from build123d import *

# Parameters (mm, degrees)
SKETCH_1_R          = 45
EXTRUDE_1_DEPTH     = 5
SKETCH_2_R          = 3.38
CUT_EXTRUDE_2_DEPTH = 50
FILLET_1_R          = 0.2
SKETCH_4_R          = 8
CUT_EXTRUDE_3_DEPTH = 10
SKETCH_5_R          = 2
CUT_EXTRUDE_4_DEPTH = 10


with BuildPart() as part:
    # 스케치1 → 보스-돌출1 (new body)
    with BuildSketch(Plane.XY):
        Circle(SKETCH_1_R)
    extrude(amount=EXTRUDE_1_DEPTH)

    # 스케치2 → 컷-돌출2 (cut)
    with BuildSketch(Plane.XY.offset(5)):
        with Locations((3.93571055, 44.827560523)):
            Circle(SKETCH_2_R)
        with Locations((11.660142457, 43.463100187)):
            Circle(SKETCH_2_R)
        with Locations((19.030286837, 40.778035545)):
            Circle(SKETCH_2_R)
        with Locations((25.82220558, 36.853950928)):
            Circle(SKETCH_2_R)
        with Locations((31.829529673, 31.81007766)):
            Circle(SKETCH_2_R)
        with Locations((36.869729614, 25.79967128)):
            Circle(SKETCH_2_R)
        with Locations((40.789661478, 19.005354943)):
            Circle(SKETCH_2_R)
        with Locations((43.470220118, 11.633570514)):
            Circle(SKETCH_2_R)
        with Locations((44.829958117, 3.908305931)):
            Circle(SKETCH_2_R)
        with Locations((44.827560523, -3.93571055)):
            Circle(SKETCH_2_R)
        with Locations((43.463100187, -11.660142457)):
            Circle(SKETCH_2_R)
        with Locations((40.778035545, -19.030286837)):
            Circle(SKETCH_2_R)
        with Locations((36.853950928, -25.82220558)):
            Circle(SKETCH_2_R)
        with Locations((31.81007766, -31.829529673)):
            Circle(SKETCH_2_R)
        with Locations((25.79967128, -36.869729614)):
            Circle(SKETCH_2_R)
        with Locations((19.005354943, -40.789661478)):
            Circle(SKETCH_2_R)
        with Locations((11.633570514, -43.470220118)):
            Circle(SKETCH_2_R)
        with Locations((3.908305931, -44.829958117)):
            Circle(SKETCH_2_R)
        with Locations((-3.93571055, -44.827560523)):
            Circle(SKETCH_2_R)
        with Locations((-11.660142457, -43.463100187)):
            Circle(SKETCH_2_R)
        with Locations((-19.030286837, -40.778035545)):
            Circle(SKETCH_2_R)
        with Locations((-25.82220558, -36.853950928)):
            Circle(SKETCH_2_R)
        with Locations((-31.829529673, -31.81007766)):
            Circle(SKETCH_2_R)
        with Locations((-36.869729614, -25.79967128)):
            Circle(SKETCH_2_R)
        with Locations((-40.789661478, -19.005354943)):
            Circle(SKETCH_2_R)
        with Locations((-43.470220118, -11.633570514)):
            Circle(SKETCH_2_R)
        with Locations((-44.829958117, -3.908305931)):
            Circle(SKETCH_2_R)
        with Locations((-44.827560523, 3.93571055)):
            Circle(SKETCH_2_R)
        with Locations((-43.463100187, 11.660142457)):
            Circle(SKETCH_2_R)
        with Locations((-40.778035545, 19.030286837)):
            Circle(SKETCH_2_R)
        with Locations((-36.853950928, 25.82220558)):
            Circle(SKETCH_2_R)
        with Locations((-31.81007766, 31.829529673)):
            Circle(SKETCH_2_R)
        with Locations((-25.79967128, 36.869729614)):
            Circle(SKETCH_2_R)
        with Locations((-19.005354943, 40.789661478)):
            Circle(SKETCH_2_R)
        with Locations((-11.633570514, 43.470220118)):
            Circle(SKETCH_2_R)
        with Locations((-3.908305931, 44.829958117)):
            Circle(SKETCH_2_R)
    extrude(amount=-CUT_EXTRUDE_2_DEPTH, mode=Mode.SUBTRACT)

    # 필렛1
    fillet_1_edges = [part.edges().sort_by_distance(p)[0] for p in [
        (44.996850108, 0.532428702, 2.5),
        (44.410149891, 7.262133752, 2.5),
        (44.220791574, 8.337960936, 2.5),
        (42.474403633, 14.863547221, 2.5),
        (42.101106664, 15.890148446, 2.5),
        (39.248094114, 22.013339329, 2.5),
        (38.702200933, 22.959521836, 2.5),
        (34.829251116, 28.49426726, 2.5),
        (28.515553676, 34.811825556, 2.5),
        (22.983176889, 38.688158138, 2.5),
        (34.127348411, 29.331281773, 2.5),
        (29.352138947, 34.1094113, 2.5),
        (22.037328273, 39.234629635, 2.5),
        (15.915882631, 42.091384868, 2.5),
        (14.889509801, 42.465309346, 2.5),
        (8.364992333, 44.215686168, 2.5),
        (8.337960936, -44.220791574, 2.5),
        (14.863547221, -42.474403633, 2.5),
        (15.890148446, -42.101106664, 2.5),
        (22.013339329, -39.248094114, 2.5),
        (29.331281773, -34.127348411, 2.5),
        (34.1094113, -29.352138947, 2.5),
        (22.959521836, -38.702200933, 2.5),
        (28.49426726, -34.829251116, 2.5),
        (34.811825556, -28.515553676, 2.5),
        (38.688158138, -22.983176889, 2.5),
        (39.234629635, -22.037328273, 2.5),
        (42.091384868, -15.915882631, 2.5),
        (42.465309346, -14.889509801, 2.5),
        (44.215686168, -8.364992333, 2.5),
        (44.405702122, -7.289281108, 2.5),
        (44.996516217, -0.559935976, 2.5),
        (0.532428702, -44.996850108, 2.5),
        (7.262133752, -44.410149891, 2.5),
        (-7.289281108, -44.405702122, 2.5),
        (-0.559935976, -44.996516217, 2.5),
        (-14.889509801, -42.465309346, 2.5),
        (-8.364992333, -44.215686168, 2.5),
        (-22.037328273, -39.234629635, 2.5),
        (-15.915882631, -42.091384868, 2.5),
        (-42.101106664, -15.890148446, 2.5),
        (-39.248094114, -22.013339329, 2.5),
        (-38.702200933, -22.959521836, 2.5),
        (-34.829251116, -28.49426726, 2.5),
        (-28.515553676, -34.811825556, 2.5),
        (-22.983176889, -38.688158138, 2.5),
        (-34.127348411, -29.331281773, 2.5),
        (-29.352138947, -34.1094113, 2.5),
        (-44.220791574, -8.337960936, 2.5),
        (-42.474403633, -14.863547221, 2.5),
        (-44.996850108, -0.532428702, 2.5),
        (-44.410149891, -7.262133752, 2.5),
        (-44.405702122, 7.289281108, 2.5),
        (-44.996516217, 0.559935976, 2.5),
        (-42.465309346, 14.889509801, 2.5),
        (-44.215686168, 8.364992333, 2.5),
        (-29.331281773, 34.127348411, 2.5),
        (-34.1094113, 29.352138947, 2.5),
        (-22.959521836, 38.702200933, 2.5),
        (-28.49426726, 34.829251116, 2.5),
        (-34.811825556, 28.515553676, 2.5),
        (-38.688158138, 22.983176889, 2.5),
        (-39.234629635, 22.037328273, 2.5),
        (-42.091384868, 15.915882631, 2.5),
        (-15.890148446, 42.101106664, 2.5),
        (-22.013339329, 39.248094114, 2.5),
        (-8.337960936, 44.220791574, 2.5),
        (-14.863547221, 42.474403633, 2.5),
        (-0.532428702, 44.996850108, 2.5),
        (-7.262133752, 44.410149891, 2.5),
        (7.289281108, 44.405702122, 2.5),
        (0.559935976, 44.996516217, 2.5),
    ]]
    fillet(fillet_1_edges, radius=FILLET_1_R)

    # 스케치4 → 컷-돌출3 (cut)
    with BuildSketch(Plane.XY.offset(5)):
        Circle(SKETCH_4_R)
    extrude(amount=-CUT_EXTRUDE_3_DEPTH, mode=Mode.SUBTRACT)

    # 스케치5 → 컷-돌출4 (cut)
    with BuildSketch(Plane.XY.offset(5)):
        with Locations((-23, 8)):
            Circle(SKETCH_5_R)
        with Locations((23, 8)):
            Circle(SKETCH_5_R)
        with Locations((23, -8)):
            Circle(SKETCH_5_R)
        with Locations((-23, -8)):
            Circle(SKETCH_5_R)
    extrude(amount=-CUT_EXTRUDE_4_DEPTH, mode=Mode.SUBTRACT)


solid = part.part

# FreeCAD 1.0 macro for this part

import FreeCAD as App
import Part
import Sketcher
from FreeCAD import Vector
Q = App.Units.Quantity


def edges_at(feature, points):
    """Names of the edges that pass closest to the given points."""
    edges = feature.Shape.Edges
    near = lambda p: min(range(len(edges)), key=lambda i: edges[i].distToShape(Part.Vertex(*p))[0])
    return sorted({f"Edge{near(p) + 1}" for p in points})

doc = App.newDocument("Part")
params = doc.addObject("Spreadsheet::Sheet", "Params")
for row, (alias, value) in enumerate([
    ("sketch1_diameter", "90 mm"),
    ("pad1_length", "5 mm"),
    ("sketch2_diameter", "6.76 mm"),
    ("pocket1_length", "50 mm"),
    ("fillet_radius", "0.2 mm"),
    ("sketch3_diameter", "16 mm"),
    ("pocket2_length", "10 mm"),
    ("sketch4_diameter", "4 mm"),
    ("pocket3_length", "10 mm"),
], start=1):
    params.set(f"A{row}", alias)
    params.set(f"B{row}", "=" + value)
    params.setAlias(f"B{row}", alias)

body = doc.addObject("PartDesign::Body", "Body")

# Sketch on XY plane
sketch1 = doc.addObject("Sketcher::SketchObject", "Sketch")
body.addObject(sketch1)
sketch1.AttachmentSupport = (doc.XY_Plane, [""])
sketch1.MapMode = "FlatFace"
sketch1.addGeometry(Part.Circle(Vector(0, 0, 0), Vector(0, 0, 1), 45), False)
sketch1.addConstraint([
    Sketcher.Constraint("Coincident", 0, 3, -1, 1),
    Sketcher.Constraint("Diameter", 0, Q("90 mm")),
])
sketch1.setExpression("Constraints[1]", "Params.sketch1_diameter")
pad1 = doc.addObject("PartDesign::Pad", "Pad")
body.addObject(pad1)
pad1.Profile = sketch1
pad1.setExpression("Length", "Params.pad1_length")

# Sketch on XY plane
sketch2 = doc.addObject("Sketcher::SketchObject", "Sketch001")
body.addObject(sketch2)
sketch2.AttachmentSupport = (doc.XY_Plane, [""])
sketch2.MapMode = "FlatFace"
sketch2.AttachmentOffset = App.Placement(Vector(0, 0, 5), App.Rotation())
sketch2.addGeometry([
    Part.Circle(Vector(3.9, 44.8, 0), Vector(0, 0, 1), 3.4),  # 0
    Part.Circle(Vector(11.7, 43.5, 0), Vector(0, 0, 1), 3.4),  # 1
    Part.Circle(Vector(19, 40.8, 0), Vector(0, 0, 1), 3.4),  # 2
    Part.Circle(Vector(25.8, 36.9, 0), Vector(0, 0, 1), 3.4),  # 3
    Part.Circle(Vector(31.8, 31.8, 0), Vector(0, 0, 1), 3.4),  # 4
    Part.Circle(Vector(36.9, 25.8, 0), Vector(0, 0, 1), 3.4),  # 5
    Part.Circle(Vector(40.8, 19, 0), Vector(0, 0, 1), 3.4),  # 6
    Part.Circle(Vector(43.5, 11.6, 0), Vector(0, 0, 1), 3.4),  # 7
    Part.Circle(Vector(44.8, 3.9, 0), Vector(0, 0, 1), 3.4),  # 8
    Part.Circle(Vector(44.8, -3.9, 0), Vector(0, 0, 1), 3.4),  # 9
    Part.Circle(Vector(43.5, -11.7, 0), Vector(0, 0, 1), 3.4),  # 10
    Part.Circle(Vector(40.8, -19, 0), Vector(0, 0, 1), 3.4),  # 11
    Part.Circle(Vector(36.9, -25.8, 0), Vector(0, 0, 1), 3.4),  # 12
    Part.Circle(Vector(31.8, -31.8, 0), Vector(0, 0, 1), 3.4),  # 13
    Part.Circle(Vector(25.8, -36.9, 0), Vector(0, 0, 1), 3.4),  # 14
    Part.Circle(Vector(19, -40.8, 0), Vector(0, 0, 1), 3.4),  # 15
    Part.Circle(Vector(11.6, -43.5, 0), Vector(0, 0, 1), 3.4),  # 16
    Part.Circle(Vector(3.9, -44.8, 0), Vector(0, 0, 1), 3.4),  # 17
    Part.Circle(Vector(-3.9, -44.8, 0), Vector(0, 0, 1), 3.4),  # 18
    Part.Circle(Vector(-11.7, -43.5, 0), Vector(0, 0, 1), 3.4),  # 19
    Part.Circle(Vector(-19, -40.8, 0), Vector(0, 0, 1), 3.4),  # 20
    Part.Circle(Vector(-25.8, -36.9, 0), Vector(0, 0, 1), 3.4),  # 21
    Part.Circle(Vector(-31.8, -31.8, 0), Vector(0, 0, 1), 3.4),  # 22
    Part.Circle(Vector(-36.9, -25.8, 0), Vector(0, 0, 1), 3.4),  # 23
    Part.Circle(Vector(-40.8, -19, 0), Vector(0, 0, 1), 3.4),  # 24
    Part.Circle(Vector(-43.5, -11.6, 0), Vector(0, 0, 1), 3.4),  # 25
    Part.Circle(Vector(-44.8, -3.9, 0), Vector(0, 0, 1), 3.4),  # 26
    Part.Circle(Vector(-44.8, 3.9, 0), Vector(0, 0, 1), 3.4),  # 27
    Part.Circle(Vector(-43.5, 11.7, 0), Vector(0, 0, 1), 3.4),  # 28
    Part.Circle(Vector(-40.8, 19, 0), Vector(0, 0, 1), 3.4),  # 29
    Part.Circle(Vector(-36.9, 25.8, 0), Vector(0, 0, 1), 3.4),  # 30
    Part.Circle(Vector(-31.8, 31.8, 0), Vector(0, 0, 1), 3.4),  # 31
    Part.Circle(Vector(-25.8, 36.9, 0), Vector(0, 0, 1), 3.4),  # 32
    Part.Circle(Vector(-19, 40.8, 0), Vector(0, 0, 1), 3.4),  # 33
    Part.Circle(Vector(-11.6, 43.5, 0), Vector(0, 0, 1), 3.4),  # 34
    Part.Circle(Vector(-3.9, 44.8, 0), Vector(0, 0, 1), 3.4),  # 35
], False)
sketch2.addConstraint([
    Sketcher.Constraint("Equal", 0, 1),
    Sketcher.Constraint("Equal", 1, 2),
    Sketcher.Constraint("Equal", 2, 3),
    Sketcher.Constraint("Equal", 3, 4),
    Sketcher.Constraint("Equal", 4, 5),
    Sketcher.Constraint("Equal", 5, 6),
    Sketcher.Constraint("Equal", 6, 7),
    Sketcher.Constraint("Equal", 7, 8),
    Sketcher.Constraint("Equal", 8, 9),
    Sketcher.Constraint("Equal", 9, 10),
    Sketcher.Constraint("Equal", 10, 11),
    Sketcher.Constraint("Equal", 11, 12),
    Sketcher.Constraint("Equal", 12, 13),
    Sketcher.Constraint("Equal", 13, 14),
    Sketcher.Constraint("Equal", 14, 15),
    Sketcher.Constraint("Equal", 15, 16),
    Sketcher.Constraint("Equal", 16, 17),
    Sketcher.Constraint("Equal", 17, 18),
    Sketcher.Constraint("Equal", 18, 19),
    Sketcher.Constraint("Equal", 19, 20),
    Sketcher.Constraint("Equal", 20, 21),
    Sketcher.Constraint("Equal", 21, 22),
    Sketcher.Constraint("Equal", 22, 23),
    Sketcher.Constraint("Equal", 23, 24),
    Sketcher.Constraint("Equal", 24, 25),
    Sketcher.Constraint("Equal", 25, 26),
    Sketcher.Constraint("Equal", 26, 27),
    Sketcher.Constraint("Equal", 27, 28),
    Sketcher.Constraint("Equal", 28, 29),
    Sketcher.Constraint("Equal", 29, 30),
    Sketcher.Constraint("Equal", 30, 31),
    Sketcher.Constraint("Equal", 31, 32),
    Sketcher.Constraint("Equal", 32, 33),
    Sketcher.Constraint("Equal", 33, 34),
    Sketcher.Constraint("Equal", 34, 35),
    Sketcher.Constraint("Symmetric", 0, 3, 18, 3, -1, 1),
    Sketcher.Constraint("Symmetric", 1, 3, 19, 3, -1, 1),
    Sketcher.Constraint("Symmetric", 2, 3, 20, 3, -1, 1),
    Sketcher.Constraint("Symmetric", 3, 3, 21, 3, -1, 1),
    Sketcher.Constraint("Symmetric", 4, 3, 22, 3, -1, 1),
    Sketcher.Constraint("Symmetric", 5, 3, 23, 3, -1, 1),
    Sketcher.Constraint("Symmetric", 6, 3, 24, 3, -1, 1),
    Sketcher.Constraint("Symmetric", 7, 3, 25, 3, -1, 1),
    Sketcher.Constraint("Symmetric", 8, 3, 26, 3, -1, 1),
    Sketcher.Constraint("Symmetric", 9, 3, 27, 3, -1, 1),
    Sketcher.Constraint("Symmetric", 10, 3, 28, 3, -1, 1),
    Sketcher.Constraint("Symmetric", 11, 3, 29, 3, -1, 1),
    Sketcher.Constraint("Symmetric", 12, 3, 30, 3, -1, 1),
    Sketcher.Constraint("Symmetric", 13, 3, 31, 3, -1, 1),
    Sketcher.Constraint("Symmetric", 14, 3, 32, 3, -1, 1),
    Sketcher.Constraint("Symmetric", 15, 3, 33, 3, -1, 1),
    Sketcher.Constraint("Symmetric", 16, 3, 34, 3, -1, 1),
    Sketcher.Constraint("Symmetric", 17, 3, 35, 3, -1, 1),
    Sketcher.Constraint("Diameter", 0, Q("6.76 mm")),
    Sketcher.Constraint("DistanceY", -1, 1, 1, 3, Q("43.4631 mm")),
    Sketcher.Constraint("DistanceX", -1, 1, 10, 3, Q("43.4631 mm")),
    Sketcher.Constraint("DistanceX", 4, 3, 5, 3, Q("5.0402 mm")),
    Sketcher.Constraint("DistanceY", 7, 3, 5, 3, Q("14.166101 mm")),
    Sketcher.Constraint("DistanceX", 6, 3, 9, 3, Q("4.037899 mm")),
    Sketcher.Constraint("DistanceY", 14, 3, 13, 3, Q("5.0402 mm")),
    Sketcher.Constraint("DistanceX", 16, 3, 14, 3, Q("14.166101 mm")),
    Sketcher.Constraint("DistanceY", 18, 3, 15, 3, Q("4.037899 mm")),
    Sketcher.Constraint("DistanceX", -1, 1, 0, 3, Q("3.935711 mm")),
    Sketcher.Constraint("DistanceY", -1, 1, 0, 3, Q("44.827561 mm")),
    Sketcher.Constraint("DistanceY", -1, 1, 3, 3, Q("36.853951 mm")),
    Sketcher.Constraint("DistanceX", -1, 1, 4, 3, Q("31.82953 mm")),
    Sketcher.Constraint("DistanceY", -1, 1, 5, 3, Q("25.799671 mm")),
    Sketcher.Constraint("DistanceX", -1, 1, 6, 3, Q("40.789661 mm")),
    Sketcher.Constraint("DistanceX", -1, 1, 7, 3, Q("43.47022 mm")),
    Sketcher.Constraint("DistanceX", -1, 1, 8, 3, Q("44.829958 mm")),
    Sketcher.Constraint("DistanceY", 9, 3, -1, 1, Q("3.935711 mm")),
    Sketcher.Constraint("DistanceX", -1, 1, 12, 3, Q("36.853951 mm")),
    Sketcher.Constraint("DistanceY", 13, 3, -1, 1, Q("31.82953 mm")),
    Sketcher.Constraint("DistanceX", -1, 1, 14, 3, Q("25.799671 mm")),
    Sketcher.Constraint("DistanceY", 16, 3, -1, 1, Q("43.47022 mm")),
    Sketcher.Constraint("DistanceY", 17, 3, -1, 1, Q("44.829958 mm")),
    Sketcher.Constraint("DistanceX", 0, 3, 1, 3, Q("7.724432 mm")),
    Sketcher.Constraint("DistanceX", 2, 3, 3, 3, Q("6.791919 mm")),
    Sketcher.Constraint("DistanceY", 6, 3, 2, 3, Q("21.772681 mm")),
    Sketcher.Constraint("DistanceY", 8, 3, 6, 3, Q("15.097049 mm")),
    Sketcher.Constraint("DistanceY", 8, 3, 4, 3, Q("27.901772 mm")),
    Sketcher.Constraint("DistanceY", 9, 3, 4, 3, Q("35.745788 mm")),
    Sketcher.Constraint("DistanceY", 10, 3, 9, 3, Q("7.724432 mm")),
    Sketcher.Constraint("DistanceY", 11, 3, 6, 3, Q("38.035642 mm")),
    Sketcher.Constraint("DistanceY", 12, 3, 11, 3, Q("6.791919 mm")),
    Sketcher.Constraint("DistanceX", 13, 3, 8, 3, Q("13.01988 mm")),
    Sketcher.Constraint("DistanceX", 15, 3, 11, 3, Q("21.772681 mm")),
    Sketcher.Constraint("DistanceX", 17, 3, 15, 3, Q("15.097049 mm")),
    Sketcher.Constraint("DistanceX", 17, 3, 13, 3, Q("27.901772 mm")),
    Sketcher.Constraint("DistanceX", 20, 3, 15, 3, Q("38.035642 mm")),
])
sketch2.setExpression("Constraints[53]", "Params.sketch2_diameter")
pocket1 = doc.addObject("PartDesign::Pocket", "Pocket")
body.addObject(pocket1)
pocket1.Profile = sketch2
pocket1.setExpression("Length", "Params.pocket1_length")
doc.recompute()

fillet = doc.addObject("PartDesign::Fillet", "Fillet")
body.addObject(fillet)
fillet.Base = (pocket1, edges_at(pocket1, [
    (44.997, 0.532, 2.5),
    (44.41, 7.262, 2.5),
    (44.221, 8.338, 2.5),
    (42.474, 14.864, 2.5),
    (42.101, 15.89, 2.5),
    (39.248, 22.013, 2.5),
    (38.702, 22.96, 2.5),
    (34.829, 28.494, 2.5),
    (28.516, 34.812, 2.5),
    (22.983, 38.688, 2.5),
    (34.127, 29.331, 2.5),
    (29.352, 34.109, 2.5),
    (22.037, 39.235, 2.5),
    (15.916, 42.091, 2.5),
    (14.89, 42.465, 2.5),
    (8.365, 44.216, 2.5),
    (8.338, -44.221, 2.5),
    (14.864, -42.474, 2.5),
    (15.89, -42.101, 2.5),
    (22.013, -39.248, 2.5),
    (29.331, -34.127, 2.5),
    (34.109, -29.352, 2.5),
    (22.96, -38.702, 2.5),
    (28.494, -34.829, 2.5),
    (34.812, -28.516, 2.5),
    (38.688, -22.983, 2.5),
    (39.235, -22.037, 2.5),
    (42.091, -15.916, 2.5),
    (42.465, -14.89, 2.5),
    (44.216, -8.365, 2.5),
    (44.406, -7.289, 2.5),
    (44.997, -0.56, 2.5),
    (0.532, -44.997, 2.5),
    (7.262, -44.41, 2.5),
    (-7.289, -44.406, 2.5),
    (-0.56, -44.997, 2.5),
    (-14.89, -42.465, 2.5),
    (-8.365, -44.216, 2.5),
    (-22.037, -39.235, 2.5),
    (-15.916, -42.091, 2.5),
    (-42.101, -15.89, 2.5),
    (-39.248, -22.013, 2.5),
    (-38.702, -22.96, 2.5),
    (-34.829, -28.494, 2.5),
    (-28.516, -34.812, 2.5),
    (-22.983, -38.688, 2.5),
    (-34.127, -29.331, 2.5),
    (-29.352, -34.109, 2.5),
    (-44.221, -8.338, 2.5),
    (-42.474, -14.864, 2.5),
    (-44.997, -0.532, 2.5),
    (-44.41, -7.262, 2.5),
    (-44.406, 7.289, 2.5),
    (-44.997, 0.56, 2.5),
    (-42.465, 14.89, 2.5),
    (-44.216, 8.365, 2.5),
    (-29.331, 34.127, 2.5),
    (-34.109, 29.352, 2.5),
    (-22.96, 38.702, 2.5),
    (-28.494, 34.829, 2.5),
    (-34.812, 28.516, 2.5),
    (-38.688, 22.983, 2.5),
    (-39.235, 22.037, 2.5),
    (-42.091, 15.916, 2.5),
    (-15.89, 42.101, 2.5),
    (-22.013, 39.248, 2.5),
    (-8.338, 44.221, 2.5),
    (-14.864, 42.474, 2.5),
    (-0.532, 44.997, 2.5),
    (-7.262, 44.41, 2.5),
    (7.289, 44.406, 2.5),
    (0.56, 44.997, 2.5),
]))
fillet.setExpression("Radius", "Params.fillet_radius")

# Sketch on XY plane
sketch3 = doc.addObject("Sketcher::SketchObject", "Sketch002")
body.addObject(sketch3)
sketch3.AttachmentSupport = (doc.XY_Plane, [""])
sketch3.MapMode = "FlatFace"
sketch3.AttachmentOffset = App.Placement(Vector(0, 0, 5), App.Rotation())
sketch3.addGeometry(Part.Circle(Vector(0, 0, 0), Vector(0, 0, 1), 8), False)
sketch3.addConstraint([
    Sketcher.Constraint("Coincident", 0, 3, -1, 1),
    Sketcher.Constraint("Diameter", 0, Q("16 mm")),
])
sketch3.setExpression("Constraints[1]", "Params.sketch3_diameter")
pocket2 = doc.addObject("PartDesign::Pocket", "Pocket001")
body.addObject(pocket2)
pocket2.Profile = sketch3
pocket2.setExpression("Length", "Params.pocket2_length")

# Sketch on XY plane
sketch4 = doc.addObject("Sketcher::SketchObject", "Sketch003")
body.addObject(sketch4)
sketch4.AttachmentSupport = (doc.XY_Plane, [""])
sketch4.MapMode = "FlatFace"
sketch4.AttachmentOffset = App.Placement(Vector(0, 0, 5), App.Rotation())
sketch4.addGeometry([
    Part.Circle(Vector(-23, 8, 0), Vector(0, 0, 1), 2),
    Part.Circle(Vector(23, 8, 0), Vector(0, 0, 1), 2),
    Part.Circle(Vector(23, -8, 0), Vector(0, 0, 1), 2),
    Part.Circle(Vector(-23, -8, 0), Vector(0, 0, 1), 2),
], False)
sketch4.addConstraint([
    Sketcher.Constraint("Equal", 0, 1),
    Sketcher.Constraint("Equal", 1, 2),
    Sketcher.Constraint("Equal", 2, 3),
    Sketcher.Constraint("Symmetric", 0, 3, 2, 3, -1, 1),
    Sketcher.Constraint("Symmetric", 1, 3, 3, 3, -1, 1),
    Sketcher.Constraint("Symmetric", 0, 3, 1, 3, -2),
    Sketcher.Constraint("Diameter", 0, Q("4 mm")),
    Sketcher.Constraint("DistanceX", 0, 3, -1, 1, Q("23 mm")),
    Sketcher.Constraint("DistanceY", -1, 1, 0, 3, Q("8 mm")),
])
sketch4.setExpression("Constraints[6]", "Params.sketch4_diameter")
pocket3 = doc.addObject("PartDesign::Pocket", "Pocket002")
body.addObject(pocket3)
pocket3.Profile = sketch4
pocket3.setExpression("Length", "Params.pocket3_length")

doc.recompute()
